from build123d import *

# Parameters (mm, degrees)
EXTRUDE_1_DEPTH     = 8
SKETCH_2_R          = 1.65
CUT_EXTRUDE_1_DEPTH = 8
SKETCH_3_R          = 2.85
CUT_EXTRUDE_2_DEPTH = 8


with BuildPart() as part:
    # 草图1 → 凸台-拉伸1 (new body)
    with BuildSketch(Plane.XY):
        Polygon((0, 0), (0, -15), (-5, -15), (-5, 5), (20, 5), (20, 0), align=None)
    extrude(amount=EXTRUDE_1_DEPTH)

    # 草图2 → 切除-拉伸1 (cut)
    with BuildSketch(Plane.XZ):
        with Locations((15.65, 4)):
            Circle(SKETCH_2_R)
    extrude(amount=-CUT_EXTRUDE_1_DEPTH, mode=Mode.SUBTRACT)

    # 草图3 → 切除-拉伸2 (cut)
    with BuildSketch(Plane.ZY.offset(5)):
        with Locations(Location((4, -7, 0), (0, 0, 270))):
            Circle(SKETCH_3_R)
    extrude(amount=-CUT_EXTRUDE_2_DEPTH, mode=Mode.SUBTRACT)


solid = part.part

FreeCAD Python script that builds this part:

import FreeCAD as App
import Part
import Sketcher

V = App.Vector
Q = App.Units.Quantity


def add_polygon(sketch, points):
    """Adds a closed chain of lines whose ends are joined by coincident constraints."""
    first, n = sketch.GeometryCount, len(points)
    for a, b in zip(points, points[1:] + points[:1]):
        sketch.addGeometry(Part.LineSegment(App.Vector(*a, 0), App.Vector(*b, 0)), False)
    for i in range(n):
        sketch.addConstraint(Sketcher.Constraint("Coincident", first + i, 2, first + (i + 1) % n, 1))

doc = App.newDocument("Part")
body = doc.addObject("PartDesign::Body", "Body")

# Sketch on XY plane
sketch1 = doc.addObject("Sketcher::SketchObject", "Sketch")
body.addObject(sketch1)
sketch1.AttachmentSupport = (doc.XY_Plane, [""])
sketch1.MapMode = "FlatFace"
add_polygon(sketch1, [(0, -15), (0, 0), (20, 0), (20, 5), (-5, 5), (-5, -15)])  # lines 0-5
sketch1.addConstraint(Sketcher.Constraint("Vertical", 0))
sketch1.addConstraint(Sketcher.Constraint("Horizontal", 1))
sketch1.addConstraint(Sketcher.Constraint("Vertical", 2))
sketch1.addConstraint(Sketcher.Constraint("Horizontal", 3))
sketch1.addConstraint(Sketcher.Constraint("Vertical", 4))
sketch1.addConstraint(Sketcher.Constraint("Horizontal", 5))
sketch1.addConstraint(Sketcher.Constraint("Coincident", 0, 2, -1, 1))
sketch1.addConstraint(Sketcher.Constraint("Equal", 5, 2))
sketch1.addConstraint(Sketcher.Constraint("Equal", 1, 4))
sketch1.addConstraint(Sketcher.Constraint("DistanceX", 1, 1, 1, 2, Q("20 mm")))
sketch1.addConstraint(Sketcher.Constraint("DistanceX", 3, 2, 3, 1, Q("25 mm")))
pad1 = doc.addObject("PartDesign::Pad", "Pad")
body.addObject(pad1)
pad1.Profile = sketch1
pad1.Length = 8

# Sketch on XZ plane
sketch2 = doc.addObject("Sketcher::SketchObject", "Sketch001")
body.addObject(sketch2)
sketch2.AttachmentSupport = (doc.XZ_Plane, [""])
sketch2.MapMode = "FlatFace"
sketch2.addGeometry(Part.Circle(V(15.65, 4, 0), V(0, 0, 1), 1.65), False)
sketch2.addConstraint(Sketcher.Constraint("Diameter", 0, Q("3.3 mm")))
sketch2.addConstraint(Sketcher.Constraint("DistanceY", -1, 1, 0, 3, Q("4 mm")))
sketch2.addConstraint(Sketcher.Constraint("DistanceX", -1, 1, 0, 3, Q("15.65 mm")))
pocket1 = doc.addObject("PartDesign::Pocket", "Pocket")
body.addObject(pocket1)
pocket1.Profile = sketch2
pocket1.Length = 8

# Sketch on YZ plane
sketch3 = doc.addObject("Sketcher::SketchObject", "Sketch002")
body.addObject(sketch3)
sketch3.AttachmentSupport = (doc.YZ_Plane, [""])
sketch3.MapMode = "FlatFace"
sketch3.AttachmentOffset = App.Placement(V(0, 0, -5), App.Rotation())
sketch3.addGeometry(Part.Circle(V(-7, 4, 0), V(0, 0, 1), 2.85), False)
sketch3.addConstraint(Sketcher.Constraint("Diameter", 0, Q("5.7 mm")))
sketch3.addConstraint(Sketcher.Constraint("DistanceX", 0, 3, -1, 1, Q("7 mm")))
sketch3.addConstraint(Sketcher.Constraint("DistanceY", -1, 1, 0, 3, Q("4 mm")))
pocket2 = doc.addObject("PartDesign::Pocket", "Pocket001")
body.addObject(pocket2)
pocket2.Profile = sketch3
pocket2.Length = 8
pocket2.Reversed = True

doc.recompute()
